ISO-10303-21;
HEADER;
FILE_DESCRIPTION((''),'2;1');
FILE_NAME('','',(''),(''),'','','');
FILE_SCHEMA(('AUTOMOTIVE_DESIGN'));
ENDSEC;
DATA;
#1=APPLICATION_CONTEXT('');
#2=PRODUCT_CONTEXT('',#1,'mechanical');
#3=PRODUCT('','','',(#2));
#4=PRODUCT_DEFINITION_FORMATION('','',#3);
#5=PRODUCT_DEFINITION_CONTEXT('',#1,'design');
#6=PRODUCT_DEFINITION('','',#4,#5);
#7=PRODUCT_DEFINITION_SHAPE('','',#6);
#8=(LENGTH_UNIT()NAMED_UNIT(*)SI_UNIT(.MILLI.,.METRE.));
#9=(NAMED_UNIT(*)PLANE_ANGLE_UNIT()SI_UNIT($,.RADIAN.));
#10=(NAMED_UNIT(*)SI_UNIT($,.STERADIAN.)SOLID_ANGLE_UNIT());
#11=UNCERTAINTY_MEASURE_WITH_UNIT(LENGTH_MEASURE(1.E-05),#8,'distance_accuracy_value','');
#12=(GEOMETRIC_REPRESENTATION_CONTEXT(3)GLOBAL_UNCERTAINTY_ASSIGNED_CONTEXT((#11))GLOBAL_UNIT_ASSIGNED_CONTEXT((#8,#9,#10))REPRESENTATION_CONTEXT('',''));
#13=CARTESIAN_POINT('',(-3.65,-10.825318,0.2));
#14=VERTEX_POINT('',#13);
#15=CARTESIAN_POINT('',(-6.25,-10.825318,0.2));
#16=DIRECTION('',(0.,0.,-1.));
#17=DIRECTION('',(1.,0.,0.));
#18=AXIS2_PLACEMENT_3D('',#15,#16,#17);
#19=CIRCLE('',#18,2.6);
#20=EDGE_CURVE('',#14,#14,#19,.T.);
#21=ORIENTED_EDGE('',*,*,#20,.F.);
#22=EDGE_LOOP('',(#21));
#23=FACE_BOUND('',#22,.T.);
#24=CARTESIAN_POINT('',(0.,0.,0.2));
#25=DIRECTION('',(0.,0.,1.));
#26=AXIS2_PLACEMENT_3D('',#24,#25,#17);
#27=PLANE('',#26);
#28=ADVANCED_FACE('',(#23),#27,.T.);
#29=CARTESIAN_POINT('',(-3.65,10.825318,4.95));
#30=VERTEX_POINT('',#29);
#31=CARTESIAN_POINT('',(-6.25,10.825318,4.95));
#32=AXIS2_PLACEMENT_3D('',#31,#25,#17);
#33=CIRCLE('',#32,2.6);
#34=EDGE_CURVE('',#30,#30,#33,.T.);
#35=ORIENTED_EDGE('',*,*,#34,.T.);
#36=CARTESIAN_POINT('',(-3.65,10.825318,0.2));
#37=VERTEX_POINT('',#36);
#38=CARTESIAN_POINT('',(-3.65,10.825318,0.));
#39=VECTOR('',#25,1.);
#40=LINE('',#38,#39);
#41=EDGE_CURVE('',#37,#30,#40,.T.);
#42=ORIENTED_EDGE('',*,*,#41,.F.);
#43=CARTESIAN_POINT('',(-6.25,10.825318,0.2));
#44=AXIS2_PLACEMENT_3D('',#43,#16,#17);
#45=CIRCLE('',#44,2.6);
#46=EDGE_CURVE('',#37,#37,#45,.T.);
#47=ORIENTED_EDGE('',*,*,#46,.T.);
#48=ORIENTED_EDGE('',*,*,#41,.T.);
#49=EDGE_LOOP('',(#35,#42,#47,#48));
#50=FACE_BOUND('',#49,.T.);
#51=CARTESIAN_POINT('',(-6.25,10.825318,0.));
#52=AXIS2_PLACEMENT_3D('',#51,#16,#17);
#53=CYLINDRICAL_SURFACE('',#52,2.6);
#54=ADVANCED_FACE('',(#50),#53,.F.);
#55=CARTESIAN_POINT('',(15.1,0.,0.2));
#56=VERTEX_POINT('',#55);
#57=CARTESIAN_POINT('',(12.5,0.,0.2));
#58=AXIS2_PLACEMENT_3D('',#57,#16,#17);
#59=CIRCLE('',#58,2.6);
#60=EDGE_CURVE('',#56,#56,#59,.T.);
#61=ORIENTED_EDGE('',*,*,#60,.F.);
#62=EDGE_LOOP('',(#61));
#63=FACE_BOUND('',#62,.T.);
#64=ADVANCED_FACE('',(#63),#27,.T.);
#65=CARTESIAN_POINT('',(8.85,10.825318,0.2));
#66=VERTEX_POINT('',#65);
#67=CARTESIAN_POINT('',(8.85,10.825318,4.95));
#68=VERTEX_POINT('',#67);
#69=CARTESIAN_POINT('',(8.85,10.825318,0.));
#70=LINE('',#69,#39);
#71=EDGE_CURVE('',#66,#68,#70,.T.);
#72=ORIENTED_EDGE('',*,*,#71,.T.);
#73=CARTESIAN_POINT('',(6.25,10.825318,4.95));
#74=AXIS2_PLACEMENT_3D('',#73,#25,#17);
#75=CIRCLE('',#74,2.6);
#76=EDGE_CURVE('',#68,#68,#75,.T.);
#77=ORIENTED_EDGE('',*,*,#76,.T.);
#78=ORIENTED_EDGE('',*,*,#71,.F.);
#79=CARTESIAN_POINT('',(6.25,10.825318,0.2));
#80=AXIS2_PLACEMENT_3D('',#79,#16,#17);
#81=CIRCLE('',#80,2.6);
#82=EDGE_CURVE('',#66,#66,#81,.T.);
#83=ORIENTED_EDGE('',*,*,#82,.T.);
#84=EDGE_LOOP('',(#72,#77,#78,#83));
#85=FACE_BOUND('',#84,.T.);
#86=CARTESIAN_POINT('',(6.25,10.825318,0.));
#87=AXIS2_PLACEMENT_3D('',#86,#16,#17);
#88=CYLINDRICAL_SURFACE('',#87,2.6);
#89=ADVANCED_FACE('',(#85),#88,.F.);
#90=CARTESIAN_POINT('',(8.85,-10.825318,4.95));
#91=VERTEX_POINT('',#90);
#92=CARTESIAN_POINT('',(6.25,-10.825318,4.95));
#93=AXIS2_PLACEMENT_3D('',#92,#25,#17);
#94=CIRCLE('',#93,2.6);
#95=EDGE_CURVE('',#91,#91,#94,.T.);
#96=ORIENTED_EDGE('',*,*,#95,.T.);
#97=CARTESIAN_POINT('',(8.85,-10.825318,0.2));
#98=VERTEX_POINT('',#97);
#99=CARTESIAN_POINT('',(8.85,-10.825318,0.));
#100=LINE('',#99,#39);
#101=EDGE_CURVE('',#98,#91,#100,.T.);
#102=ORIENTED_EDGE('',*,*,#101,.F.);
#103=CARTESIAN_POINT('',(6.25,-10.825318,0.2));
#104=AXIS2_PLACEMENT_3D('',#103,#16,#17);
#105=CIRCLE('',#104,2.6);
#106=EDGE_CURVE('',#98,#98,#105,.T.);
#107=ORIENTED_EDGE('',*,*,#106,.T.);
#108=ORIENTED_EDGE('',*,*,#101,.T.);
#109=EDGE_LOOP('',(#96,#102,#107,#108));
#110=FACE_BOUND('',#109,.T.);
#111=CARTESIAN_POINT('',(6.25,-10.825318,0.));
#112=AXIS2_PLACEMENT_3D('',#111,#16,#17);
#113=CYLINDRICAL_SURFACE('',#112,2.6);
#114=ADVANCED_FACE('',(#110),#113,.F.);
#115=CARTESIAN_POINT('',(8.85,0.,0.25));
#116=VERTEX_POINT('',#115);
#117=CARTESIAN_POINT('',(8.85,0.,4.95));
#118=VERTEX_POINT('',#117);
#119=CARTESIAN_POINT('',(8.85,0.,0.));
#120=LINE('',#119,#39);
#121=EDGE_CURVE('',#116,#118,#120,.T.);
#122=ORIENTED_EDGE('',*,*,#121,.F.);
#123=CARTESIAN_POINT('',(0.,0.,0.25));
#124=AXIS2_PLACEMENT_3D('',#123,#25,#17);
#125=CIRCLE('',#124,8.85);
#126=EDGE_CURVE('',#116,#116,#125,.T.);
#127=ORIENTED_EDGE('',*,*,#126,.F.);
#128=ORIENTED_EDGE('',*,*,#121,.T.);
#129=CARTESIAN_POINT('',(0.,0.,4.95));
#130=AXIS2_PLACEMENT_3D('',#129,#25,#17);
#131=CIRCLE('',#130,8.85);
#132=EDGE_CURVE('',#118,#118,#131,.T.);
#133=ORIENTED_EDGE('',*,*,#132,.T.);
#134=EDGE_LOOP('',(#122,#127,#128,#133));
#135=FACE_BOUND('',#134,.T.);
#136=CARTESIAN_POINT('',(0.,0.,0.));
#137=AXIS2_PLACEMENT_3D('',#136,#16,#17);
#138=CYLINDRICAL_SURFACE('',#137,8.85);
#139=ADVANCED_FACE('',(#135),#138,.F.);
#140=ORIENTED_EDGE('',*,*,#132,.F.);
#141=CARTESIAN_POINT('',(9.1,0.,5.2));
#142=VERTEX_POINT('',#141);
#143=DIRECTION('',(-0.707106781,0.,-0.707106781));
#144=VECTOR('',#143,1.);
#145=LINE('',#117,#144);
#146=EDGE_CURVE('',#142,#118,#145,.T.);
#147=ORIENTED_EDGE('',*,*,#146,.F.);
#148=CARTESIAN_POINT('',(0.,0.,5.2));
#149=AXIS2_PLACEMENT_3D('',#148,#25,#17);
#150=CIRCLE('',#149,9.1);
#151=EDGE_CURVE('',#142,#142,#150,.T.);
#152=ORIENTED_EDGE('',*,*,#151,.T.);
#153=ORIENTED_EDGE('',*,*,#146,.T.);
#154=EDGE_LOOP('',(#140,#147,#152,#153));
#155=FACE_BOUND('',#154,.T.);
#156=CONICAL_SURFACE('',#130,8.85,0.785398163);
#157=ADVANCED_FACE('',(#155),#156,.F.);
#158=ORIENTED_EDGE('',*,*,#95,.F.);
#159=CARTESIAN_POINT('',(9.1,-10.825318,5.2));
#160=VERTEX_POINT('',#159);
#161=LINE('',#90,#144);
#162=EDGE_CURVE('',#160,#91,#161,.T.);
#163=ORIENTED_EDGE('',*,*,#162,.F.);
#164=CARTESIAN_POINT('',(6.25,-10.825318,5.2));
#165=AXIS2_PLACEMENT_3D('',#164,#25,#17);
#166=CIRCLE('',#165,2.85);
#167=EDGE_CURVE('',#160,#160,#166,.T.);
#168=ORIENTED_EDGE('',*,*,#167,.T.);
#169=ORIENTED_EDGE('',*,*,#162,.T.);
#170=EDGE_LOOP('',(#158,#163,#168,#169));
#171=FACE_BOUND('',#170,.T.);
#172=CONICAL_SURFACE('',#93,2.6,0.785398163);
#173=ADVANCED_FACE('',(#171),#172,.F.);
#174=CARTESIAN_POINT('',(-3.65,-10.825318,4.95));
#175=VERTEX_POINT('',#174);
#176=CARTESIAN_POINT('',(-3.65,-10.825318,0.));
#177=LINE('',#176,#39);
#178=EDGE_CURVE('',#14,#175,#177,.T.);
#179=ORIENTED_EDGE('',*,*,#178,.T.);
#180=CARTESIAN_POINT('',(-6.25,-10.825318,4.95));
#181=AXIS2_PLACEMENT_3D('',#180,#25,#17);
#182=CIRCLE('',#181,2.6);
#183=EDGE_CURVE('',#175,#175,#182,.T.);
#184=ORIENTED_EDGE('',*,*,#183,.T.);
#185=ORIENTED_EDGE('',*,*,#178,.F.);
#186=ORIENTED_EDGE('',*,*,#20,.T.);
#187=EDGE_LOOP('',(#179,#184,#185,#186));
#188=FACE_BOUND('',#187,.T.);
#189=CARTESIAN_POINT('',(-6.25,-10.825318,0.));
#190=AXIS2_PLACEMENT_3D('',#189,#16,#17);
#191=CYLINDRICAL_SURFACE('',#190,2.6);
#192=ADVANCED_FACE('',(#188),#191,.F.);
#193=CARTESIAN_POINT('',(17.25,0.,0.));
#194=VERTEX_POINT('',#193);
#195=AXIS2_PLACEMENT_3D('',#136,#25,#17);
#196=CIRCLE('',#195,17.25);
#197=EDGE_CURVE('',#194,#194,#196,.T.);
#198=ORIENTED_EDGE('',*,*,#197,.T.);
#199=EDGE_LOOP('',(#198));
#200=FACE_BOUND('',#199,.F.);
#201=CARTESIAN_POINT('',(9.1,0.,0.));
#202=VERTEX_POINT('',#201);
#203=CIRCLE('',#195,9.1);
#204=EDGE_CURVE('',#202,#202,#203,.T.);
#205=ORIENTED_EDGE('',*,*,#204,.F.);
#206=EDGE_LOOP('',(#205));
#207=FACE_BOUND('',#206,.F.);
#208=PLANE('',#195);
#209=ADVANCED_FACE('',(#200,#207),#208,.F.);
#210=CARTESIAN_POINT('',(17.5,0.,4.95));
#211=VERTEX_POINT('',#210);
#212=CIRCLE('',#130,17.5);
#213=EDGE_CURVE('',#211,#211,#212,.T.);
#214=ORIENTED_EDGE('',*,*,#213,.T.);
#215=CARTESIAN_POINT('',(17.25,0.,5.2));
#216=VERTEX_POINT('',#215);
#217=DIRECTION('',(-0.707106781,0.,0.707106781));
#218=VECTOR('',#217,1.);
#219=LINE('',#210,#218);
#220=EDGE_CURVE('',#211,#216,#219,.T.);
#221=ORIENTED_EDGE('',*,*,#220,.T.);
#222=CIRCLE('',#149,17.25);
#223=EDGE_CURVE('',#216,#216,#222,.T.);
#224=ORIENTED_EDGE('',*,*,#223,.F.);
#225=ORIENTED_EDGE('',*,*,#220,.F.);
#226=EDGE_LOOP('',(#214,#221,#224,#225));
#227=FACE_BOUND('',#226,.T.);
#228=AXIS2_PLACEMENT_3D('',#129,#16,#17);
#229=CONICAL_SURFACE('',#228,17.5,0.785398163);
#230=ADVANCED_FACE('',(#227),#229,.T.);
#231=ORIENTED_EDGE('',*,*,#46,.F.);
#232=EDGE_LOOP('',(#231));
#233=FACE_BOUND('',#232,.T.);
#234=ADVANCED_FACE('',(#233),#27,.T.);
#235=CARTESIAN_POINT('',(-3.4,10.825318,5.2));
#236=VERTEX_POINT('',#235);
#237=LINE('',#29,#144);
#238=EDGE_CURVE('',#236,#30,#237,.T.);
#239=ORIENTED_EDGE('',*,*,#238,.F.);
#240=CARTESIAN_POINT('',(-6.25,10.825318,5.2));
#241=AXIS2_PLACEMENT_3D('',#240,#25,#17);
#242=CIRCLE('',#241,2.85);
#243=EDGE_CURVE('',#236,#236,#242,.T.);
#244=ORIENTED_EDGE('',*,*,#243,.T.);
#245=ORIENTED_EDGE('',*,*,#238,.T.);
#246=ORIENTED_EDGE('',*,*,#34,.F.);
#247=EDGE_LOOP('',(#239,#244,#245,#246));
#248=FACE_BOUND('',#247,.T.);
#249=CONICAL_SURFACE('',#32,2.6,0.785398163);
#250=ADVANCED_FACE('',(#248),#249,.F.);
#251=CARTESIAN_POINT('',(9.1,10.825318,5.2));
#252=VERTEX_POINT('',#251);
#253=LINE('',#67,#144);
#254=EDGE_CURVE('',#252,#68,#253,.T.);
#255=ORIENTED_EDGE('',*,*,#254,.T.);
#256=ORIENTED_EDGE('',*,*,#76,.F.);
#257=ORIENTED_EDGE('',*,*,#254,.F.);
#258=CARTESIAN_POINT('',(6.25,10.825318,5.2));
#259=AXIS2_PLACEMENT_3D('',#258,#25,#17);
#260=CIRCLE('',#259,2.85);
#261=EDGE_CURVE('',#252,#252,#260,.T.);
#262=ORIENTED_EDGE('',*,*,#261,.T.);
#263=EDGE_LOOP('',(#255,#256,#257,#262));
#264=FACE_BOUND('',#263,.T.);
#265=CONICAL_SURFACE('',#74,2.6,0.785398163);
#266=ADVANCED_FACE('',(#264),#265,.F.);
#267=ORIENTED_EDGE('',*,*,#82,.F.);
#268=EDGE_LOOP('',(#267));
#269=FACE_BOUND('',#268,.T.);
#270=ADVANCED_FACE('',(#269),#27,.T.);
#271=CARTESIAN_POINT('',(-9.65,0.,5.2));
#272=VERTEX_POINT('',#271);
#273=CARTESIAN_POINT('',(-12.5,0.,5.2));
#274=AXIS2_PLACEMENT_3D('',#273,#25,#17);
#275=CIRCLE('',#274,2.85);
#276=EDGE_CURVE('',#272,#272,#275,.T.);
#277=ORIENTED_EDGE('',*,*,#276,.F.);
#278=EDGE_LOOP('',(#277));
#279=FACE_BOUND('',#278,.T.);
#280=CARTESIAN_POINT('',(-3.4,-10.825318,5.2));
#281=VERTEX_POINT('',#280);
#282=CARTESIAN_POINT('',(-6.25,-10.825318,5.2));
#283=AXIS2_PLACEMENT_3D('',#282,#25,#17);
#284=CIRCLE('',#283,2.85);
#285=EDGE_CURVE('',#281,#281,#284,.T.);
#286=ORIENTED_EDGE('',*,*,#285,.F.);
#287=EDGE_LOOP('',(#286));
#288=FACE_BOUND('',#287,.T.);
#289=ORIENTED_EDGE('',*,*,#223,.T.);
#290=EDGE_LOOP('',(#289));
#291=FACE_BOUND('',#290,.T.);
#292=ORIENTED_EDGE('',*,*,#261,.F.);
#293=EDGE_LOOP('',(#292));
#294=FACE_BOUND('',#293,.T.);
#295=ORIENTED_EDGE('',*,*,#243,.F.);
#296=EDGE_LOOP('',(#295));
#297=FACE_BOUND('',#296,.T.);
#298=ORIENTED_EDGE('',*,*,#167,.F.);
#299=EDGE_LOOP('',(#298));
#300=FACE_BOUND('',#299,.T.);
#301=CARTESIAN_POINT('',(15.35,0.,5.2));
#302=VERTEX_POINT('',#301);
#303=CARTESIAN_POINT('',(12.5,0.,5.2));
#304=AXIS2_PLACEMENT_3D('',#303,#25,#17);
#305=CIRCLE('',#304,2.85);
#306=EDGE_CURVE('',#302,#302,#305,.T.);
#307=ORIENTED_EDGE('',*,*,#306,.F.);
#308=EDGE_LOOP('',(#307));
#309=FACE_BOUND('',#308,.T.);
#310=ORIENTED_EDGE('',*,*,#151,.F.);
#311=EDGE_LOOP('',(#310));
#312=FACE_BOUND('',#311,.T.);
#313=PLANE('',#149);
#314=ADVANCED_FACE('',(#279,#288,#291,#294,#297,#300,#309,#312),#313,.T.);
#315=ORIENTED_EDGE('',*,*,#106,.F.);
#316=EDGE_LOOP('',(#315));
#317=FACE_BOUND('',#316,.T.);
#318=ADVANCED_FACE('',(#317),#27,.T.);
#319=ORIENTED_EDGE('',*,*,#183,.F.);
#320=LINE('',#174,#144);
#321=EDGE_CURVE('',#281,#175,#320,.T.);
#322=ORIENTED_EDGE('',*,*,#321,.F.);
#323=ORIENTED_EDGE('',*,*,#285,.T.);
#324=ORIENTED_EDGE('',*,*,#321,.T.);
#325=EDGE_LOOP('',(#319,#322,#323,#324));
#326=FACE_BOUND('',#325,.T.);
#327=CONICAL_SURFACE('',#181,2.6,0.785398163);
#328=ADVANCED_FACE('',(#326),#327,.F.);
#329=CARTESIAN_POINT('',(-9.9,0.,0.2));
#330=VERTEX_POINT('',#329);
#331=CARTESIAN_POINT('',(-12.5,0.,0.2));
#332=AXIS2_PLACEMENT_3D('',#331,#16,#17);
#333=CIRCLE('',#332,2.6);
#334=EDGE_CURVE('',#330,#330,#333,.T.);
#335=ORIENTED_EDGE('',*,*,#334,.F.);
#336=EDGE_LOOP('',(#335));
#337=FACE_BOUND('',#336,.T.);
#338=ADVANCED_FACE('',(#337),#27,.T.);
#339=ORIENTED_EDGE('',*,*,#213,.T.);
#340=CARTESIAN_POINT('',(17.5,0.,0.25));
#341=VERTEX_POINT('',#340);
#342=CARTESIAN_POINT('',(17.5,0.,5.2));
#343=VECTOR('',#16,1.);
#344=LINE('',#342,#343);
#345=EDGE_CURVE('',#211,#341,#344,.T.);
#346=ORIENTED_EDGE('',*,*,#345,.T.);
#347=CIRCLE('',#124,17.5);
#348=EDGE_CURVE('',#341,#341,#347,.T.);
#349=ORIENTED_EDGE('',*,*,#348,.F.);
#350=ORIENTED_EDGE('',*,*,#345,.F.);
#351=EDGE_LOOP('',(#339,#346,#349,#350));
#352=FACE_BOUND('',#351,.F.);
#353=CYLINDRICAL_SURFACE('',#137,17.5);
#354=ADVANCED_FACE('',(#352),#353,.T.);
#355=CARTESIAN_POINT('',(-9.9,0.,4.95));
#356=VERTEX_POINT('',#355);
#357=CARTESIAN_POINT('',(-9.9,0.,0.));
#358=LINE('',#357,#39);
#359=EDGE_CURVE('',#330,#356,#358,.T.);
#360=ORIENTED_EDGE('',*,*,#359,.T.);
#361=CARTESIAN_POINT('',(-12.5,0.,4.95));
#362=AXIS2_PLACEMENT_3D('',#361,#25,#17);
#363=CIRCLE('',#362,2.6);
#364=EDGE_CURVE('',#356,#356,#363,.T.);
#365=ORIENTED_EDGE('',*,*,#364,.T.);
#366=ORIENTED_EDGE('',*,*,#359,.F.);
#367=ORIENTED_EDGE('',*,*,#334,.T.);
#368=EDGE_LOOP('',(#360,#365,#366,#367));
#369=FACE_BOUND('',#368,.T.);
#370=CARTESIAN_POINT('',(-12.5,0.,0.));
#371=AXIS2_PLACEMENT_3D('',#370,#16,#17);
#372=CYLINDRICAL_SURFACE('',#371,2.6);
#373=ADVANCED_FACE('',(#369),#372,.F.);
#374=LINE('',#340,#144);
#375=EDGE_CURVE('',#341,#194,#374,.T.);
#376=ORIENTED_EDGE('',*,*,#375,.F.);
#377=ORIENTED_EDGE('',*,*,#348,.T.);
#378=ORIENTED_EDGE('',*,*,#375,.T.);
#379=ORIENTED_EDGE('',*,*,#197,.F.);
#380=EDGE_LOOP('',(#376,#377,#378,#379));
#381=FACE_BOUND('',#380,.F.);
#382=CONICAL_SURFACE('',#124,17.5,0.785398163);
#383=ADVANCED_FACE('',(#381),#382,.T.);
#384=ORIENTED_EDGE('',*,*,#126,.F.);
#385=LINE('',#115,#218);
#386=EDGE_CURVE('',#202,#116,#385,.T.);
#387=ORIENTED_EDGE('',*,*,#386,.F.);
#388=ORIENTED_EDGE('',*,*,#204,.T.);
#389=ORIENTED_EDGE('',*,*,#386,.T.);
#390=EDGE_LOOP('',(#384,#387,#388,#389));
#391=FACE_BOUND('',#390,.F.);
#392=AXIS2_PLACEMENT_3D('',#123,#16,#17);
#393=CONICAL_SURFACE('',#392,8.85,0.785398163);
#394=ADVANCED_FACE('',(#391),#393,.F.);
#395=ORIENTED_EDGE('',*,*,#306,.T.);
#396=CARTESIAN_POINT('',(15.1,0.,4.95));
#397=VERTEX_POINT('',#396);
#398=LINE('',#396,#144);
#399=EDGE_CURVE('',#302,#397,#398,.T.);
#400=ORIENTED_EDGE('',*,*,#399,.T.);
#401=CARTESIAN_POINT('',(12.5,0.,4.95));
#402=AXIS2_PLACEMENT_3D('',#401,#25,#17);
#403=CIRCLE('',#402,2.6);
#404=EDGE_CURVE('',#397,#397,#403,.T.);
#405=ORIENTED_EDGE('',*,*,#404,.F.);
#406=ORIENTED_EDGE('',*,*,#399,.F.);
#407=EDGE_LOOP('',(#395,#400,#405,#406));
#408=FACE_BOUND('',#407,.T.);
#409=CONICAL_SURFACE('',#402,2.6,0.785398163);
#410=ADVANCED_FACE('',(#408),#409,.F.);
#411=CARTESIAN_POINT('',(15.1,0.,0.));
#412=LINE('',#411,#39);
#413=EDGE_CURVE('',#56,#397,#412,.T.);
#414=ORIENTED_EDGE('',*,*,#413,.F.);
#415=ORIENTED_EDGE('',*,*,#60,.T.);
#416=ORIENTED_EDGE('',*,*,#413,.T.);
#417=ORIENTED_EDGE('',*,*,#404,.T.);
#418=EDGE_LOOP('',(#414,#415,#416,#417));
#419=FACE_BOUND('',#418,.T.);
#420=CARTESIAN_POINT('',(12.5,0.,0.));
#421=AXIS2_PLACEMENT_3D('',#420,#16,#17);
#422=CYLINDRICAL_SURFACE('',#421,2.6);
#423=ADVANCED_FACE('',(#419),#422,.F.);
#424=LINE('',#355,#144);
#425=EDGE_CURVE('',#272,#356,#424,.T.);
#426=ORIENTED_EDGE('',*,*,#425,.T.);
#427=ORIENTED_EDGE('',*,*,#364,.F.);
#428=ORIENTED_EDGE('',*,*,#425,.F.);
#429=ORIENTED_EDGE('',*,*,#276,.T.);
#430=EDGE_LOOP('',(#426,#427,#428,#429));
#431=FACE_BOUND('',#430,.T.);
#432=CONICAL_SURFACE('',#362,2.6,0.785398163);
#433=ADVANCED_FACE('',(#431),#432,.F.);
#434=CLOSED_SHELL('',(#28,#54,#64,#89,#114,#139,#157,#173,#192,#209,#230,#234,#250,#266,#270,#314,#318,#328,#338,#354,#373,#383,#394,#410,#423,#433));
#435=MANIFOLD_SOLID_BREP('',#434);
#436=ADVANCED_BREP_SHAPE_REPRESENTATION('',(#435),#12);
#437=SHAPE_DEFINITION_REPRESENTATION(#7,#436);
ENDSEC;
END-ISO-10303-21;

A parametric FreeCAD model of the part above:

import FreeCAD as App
import Part
import Sketcher
Q = App.Units.Quantity


def edges_at(feature, points):
    """Names of the edges that pass closest to the given points."""
    edges = feature.Shape.Edges
    near = lambda p: min(range(len(edges)), key=lambda i: edges[i].distToShape(Part.Vertex(*p))[0])
    return sorted({f"Edge{near(p) + 1}" for p in points})

doc = App.newDocument("Part")
params = doc.addObject("Spreadsheet::Sheet", "Params")
for row, (alias, value) in enumerate([
    ("sketch1_diameter", "35 mm"),
    ("sketch1_diameter2", "5.2 mm"),
    ("sketch1_diameter3", "17.7 mm"),
    ("pad1_length", "5.2 mm"),
    ("sketch2_diameter", "35 mm"),
    ("sketch2_diameter2", "17.7 mm"),
    ("pad2_length", "0.2 mm"),
    ("chamfer_size", "0.25 mm"),
    ("chamfer2_size", "0.25 mm"),
], start=1):
    params.set(f"A{row}", alias)
    params.set(f"B{row}", "=" + value)
    params.setAlias(f"B{row}", alias)

body = doc.addObject("PartDesign::Body", "Body")

# Sketch on XY plane
sketch1 = body.newObject("Sketcher::SketchObject", "Sketch")
sketch1.AttachmentSupport = (doc.getObject("XY_Plane"), [""])
sketch1.MapMode = "FlatFace"
sketch1.addGeometry([
    Part.Circle(App.Vector(0, 0, 0), App.Vector(0, 0, 1), 17.5),  # 0
    Part.Circle(App.Vector(-6.25, -10.825318, 0), App.Vector(0, 0, 1), 2.6),  # 1
    Part.Circle(App.Vector(6.25, -10.825318, 0), App.Vector(0, 0, 1), 2.6),  # 2
    Part.Circle(App.Vector(-12.5, 0, 0), App.Vector(0, 0, 1), 2.6),  # 3
    Part.Circle(App.Vector(-6.25, 10.825318, 0), App.Vector(0, 0, 1), 2.6),  # 4
    Part.Circle(App.Vector(0, 0, 0), App.Vector(0, 0, 1), 8.85),  # 5
    Part.Circle(App.Vector(12.5, 0, 0), App.Vector(0, 0, 1), 2.6),  # 6
    Part.Circle(App.Vector(6.25, 10.825318, 0), App.Vector(0, 0, 1), 2.6),  # 7
], False)
sketch1.addConstraint([
    Sketcher.Constraint("Coincident", 0, 3, -1, 1),
    Sketcher.Constraint("Coincident", 5, 3, -1, 1),
    Sketcher.Constraint("Equal", 1, 2),
    Sketcher.Constraint("Equal", 2, 3),
    Sketcher.Constraint("Equal", 3, 4),
    Sketcher.Constraint("Equal", 4, 6),
    Sketcher.Constraint("Equal", 6, 7),
    Sketcher.Constraint("Symmetric", 2, 3, 4, 3, -1, 1),
    Sketcher.Constraint("Symmetric", 3, 3, 6, 3, -1, 1),
    Sketcher.Constraint("Symmetric", 1, 3, 7, 3, -1, 1),
    Sketcher.Constraint("Symmetric", 1, 3, 2, 3, -2),
    Sketcher.Constraint("PointOnObject", 3, 3, -1),
    Sketcher.Constraint("Diameter", 0, Q("35 mm")),
    Sketcher.Constraint("Diameter", 1, Q("5.2 mm")),
    Sketcher.Constraint("Diameter", 5, Q("17.7 mm")),
    Sketcher.Constraint("DistanceX", 3, 3, -1, 1, Q("12.5 mm")),
    Sketcher.Constraint("DistanceX", 1, 3, 2, 3, Q("12.5 mm")),
    Sketcher.Constraint("DistanceY", 1, 3, -1, 1, Q("10.825318 mm")),
])
sketch1.setExpression("Constraints[12]", "Params.sketch1_diameter")
sketch1.setExpression("Constraints[13]", "Params.sketch1_diameter2")
sketch1.setExpression("Constraints[14]", "Params.sketch1_diameter3")
pad1 = body.newObject("PartDesign::Pad", "Pad")
pad1.Profile = sketch1
pad1.setExpression("Length", "Params.pad1_length")

# Sketch on XY plane
sketch2 = body.newObject("Sketcher::SketchObject", "Sketch001")
sketch2.AttachmentSupport = (doc.getObject("XY_Plane"), [""])
sketch2.MapMode = "FlatFace"
sketch2.addGeometry([
    Part.Circle(App.Vector(0, 0, 0), App.Vector(0, 0, 1), 17.5),
    Part.Circle(App.Vector(0, 0, 0), App.Vector(0, 0, 1), 8.85),
], False)
sketch2.addConstraint([
    Sketcher.Constraint("Coincident", 0, 3, -1, 1),
    Sketcher.Constraint("Coincident", 1, 3, -1, 1),
    Sketcher.Constraint("Diameter", 0, Q("35 mm")),
    Sketcher.Constraint("Diameter", 1, Q("17.7 mm")),
])
sketch2.setExpression("Constraints[2]", "Params.sketch2_diameter")
sketch2.setExpression("Constraints[3]", "Params.sketch2_diameter2")
pad2 = body.newObject("PartDesign::Pad", "Pad001")
pad2.Profile = sketch2
pad2.setExpression("Length", "Params.pad2_length")
doc.recompute()

chamfer = body.newObject("PartDesign::Chamfer", "Chamfer")
chamfer.Base = (pad2, edges_at(pad2, [
    (-17.5, 0, 5.2),
    (-8.85, 0, 5.2),
    (3.65, -10.825, 5.2),
    (-8.85, 10.825, 5.2),
    (-15.1, 0, 5.2),
    (9.9, 0, 5.2),
    (-8.85, -10.825, 5.2),
    (3.65, 10.825, 5.2),
]))
chamfer.setExpression("Size", "Params.chamfer_size")
doc.recompute()

chamfer2 = body.newObject("PartDesign::Chamfer", "Chamfer001")
chamfer2.Base = (chamfer, edges_at(chamfer, [(-17.5, 0, 0), (-8.85, 0, 0)]))
chamfer2.setExpression("Size", "Params.chamfer2_size")

doc.recompute()
